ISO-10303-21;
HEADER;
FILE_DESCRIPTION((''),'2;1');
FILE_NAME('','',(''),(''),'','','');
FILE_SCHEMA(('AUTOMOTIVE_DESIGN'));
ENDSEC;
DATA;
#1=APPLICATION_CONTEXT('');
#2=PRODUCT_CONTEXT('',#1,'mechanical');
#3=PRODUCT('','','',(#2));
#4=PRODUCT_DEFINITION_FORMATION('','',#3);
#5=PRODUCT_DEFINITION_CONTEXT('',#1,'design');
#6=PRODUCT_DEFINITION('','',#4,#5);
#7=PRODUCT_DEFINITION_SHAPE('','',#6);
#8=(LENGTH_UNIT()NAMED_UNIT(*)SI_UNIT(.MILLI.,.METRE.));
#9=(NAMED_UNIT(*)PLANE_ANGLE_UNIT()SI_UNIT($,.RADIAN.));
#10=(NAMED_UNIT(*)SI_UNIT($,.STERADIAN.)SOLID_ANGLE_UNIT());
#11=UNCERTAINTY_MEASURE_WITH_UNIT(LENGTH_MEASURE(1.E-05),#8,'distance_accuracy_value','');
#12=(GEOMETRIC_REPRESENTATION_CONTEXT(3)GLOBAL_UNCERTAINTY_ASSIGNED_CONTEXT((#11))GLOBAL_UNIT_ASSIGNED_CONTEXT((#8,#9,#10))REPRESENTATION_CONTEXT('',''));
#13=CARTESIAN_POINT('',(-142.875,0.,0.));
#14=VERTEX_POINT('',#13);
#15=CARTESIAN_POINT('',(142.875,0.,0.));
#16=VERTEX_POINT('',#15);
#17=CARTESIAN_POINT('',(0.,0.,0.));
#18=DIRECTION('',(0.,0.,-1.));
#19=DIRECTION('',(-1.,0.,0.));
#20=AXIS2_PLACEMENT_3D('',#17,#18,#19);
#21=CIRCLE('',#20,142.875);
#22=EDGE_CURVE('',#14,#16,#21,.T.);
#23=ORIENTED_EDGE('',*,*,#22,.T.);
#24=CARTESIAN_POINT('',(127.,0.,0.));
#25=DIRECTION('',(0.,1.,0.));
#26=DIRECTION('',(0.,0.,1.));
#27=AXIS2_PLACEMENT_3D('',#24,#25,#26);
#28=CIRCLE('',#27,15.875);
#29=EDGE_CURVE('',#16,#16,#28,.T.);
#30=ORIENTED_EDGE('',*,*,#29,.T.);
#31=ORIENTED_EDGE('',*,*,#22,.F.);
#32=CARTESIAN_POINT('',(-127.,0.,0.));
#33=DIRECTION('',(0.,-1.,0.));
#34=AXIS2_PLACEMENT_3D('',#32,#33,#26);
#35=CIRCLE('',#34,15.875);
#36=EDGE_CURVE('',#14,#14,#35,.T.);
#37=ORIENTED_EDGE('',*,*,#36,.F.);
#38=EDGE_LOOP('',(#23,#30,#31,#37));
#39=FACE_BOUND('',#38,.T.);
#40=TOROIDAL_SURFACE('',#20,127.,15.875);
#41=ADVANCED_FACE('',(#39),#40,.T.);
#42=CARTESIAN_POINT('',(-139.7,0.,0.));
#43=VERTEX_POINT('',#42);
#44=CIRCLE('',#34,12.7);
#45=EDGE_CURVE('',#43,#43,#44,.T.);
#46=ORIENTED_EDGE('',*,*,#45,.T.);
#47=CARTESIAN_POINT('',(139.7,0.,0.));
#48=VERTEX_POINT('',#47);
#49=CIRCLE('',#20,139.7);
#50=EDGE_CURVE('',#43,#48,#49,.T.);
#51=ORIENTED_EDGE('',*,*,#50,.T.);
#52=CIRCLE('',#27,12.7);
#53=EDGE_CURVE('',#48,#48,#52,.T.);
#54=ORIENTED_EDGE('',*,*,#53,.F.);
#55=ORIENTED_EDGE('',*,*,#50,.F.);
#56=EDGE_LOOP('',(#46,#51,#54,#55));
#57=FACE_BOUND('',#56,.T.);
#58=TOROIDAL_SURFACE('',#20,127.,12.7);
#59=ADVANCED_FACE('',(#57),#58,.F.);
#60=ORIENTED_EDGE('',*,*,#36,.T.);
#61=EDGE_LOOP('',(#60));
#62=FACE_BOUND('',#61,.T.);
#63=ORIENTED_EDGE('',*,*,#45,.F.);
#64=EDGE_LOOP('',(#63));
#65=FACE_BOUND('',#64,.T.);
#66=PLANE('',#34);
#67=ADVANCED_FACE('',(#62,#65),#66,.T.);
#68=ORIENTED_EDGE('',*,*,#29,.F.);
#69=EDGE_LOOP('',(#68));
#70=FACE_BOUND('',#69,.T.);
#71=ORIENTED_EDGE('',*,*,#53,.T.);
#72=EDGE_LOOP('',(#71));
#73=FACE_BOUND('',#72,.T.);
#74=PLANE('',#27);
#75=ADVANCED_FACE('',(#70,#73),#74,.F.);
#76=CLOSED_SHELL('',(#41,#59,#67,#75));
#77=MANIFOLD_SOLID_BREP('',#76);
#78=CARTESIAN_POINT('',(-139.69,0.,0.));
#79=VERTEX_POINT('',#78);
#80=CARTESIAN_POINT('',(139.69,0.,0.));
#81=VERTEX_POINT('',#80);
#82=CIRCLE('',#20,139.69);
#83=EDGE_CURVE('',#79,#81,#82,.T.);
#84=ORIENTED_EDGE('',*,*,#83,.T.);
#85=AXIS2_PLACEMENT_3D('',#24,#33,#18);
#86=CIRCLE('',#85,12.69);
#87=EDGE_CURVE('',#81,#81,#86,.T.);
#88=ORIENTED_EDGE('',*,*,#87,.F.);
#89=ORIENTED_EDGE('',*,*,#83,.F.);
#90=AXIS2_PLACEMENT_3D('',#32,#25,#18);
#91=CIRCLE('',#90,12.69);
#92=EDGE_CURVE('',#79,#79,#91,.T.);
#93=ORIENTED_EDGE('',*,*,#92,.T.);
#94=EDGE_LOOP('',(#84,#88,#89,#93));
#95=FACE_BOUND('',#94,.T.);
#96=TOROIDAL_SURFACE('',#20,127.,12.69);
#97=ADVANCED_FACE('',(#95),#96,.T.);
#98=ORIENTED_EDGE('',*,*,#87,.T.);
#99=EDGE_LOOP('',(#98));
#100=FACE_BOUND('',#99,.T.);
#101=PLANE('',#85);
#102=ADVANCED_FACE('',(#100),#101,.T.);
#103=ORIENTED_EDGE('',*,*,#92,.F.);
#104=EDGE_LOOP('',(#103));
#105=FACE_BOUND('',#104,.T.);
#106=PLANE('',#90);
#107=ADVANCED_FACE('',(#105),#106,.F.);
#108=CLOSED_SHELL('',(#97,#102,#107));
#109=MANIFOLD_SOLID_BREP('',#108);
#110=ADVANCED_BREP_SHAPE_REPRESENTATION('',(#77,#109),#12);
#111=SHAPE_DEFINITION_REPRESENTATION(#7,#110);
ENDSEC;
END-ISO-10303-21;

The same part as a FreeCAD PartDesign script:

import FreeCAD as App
import Part
import Sketcher
from FreeCAD import Vector
Q = App.Units.Quantity

doc = App.newDocument("Part")
params = doc.addObject("Spreadsheet::Sheet", "Params")
for row, (alias, value) in enumerate([
    ("sketch1_diameter", "1 in"),
    ("sketch1_diameter2", "1.25 in"),
    ("revolution_angle", "180 deg"),
    ("revolution2_angle", "180 deg"),
], start=1):
    params.set(f"A{row}", alias)
    params.set(f"B{row}", "=" + value)
    params.setAlias(f"B{row}", alias)

body = doc.addObject("PartDesign::Body", "Body")

sketch1 = doc.addObject("Sketcher::SketchObject", "Sketch")
body.addObject(sketch1)
sketch1.AttachmentSupport = (doc.XZ_Plane, [""])
sketch1.MapMode = "FlatFace"
sketch1.addGeometry([
    Part.Circle(Vector(127, 0, 0), Vector(0, 0, 1), 15.875),
    Part.Circle(Vector(127, 0, 0), Vector(0, 0, 1), 12.7),
], False)
sketch1.addConstraint([
    Sketcher.Constraint("Coincident", 1, 3, 0, 3),
    Sketcher.Constraint("PointOnObject", 0, 3, -1),
    Sketcher.Constraint("Diameter", 1, Q("1 in")),
    Sketcher.Constraint("Diameter", 0, Q("1.25 in")),
    Sketcher.Constraint("DistanceX", -1, 1, 0, 3, Q("5 in")),
])
sketch1.setExpression("Constraints[2]", "Params.sketch1_diameter")
sketch1.setExpression("Constraints[3]", "Params.sketch1_diameter2")
revolution = doc.addObject("PartDesign::Revolution", "Revolution")
body.addObject(revolution)
revolution.Profile = sketch1
revolution.ReferenceAxis = (sketch1, ["V_Axis"])
revolution.setExpression("Angle", "Params.revolution_angle")
body2 = doc.addObject("PartDesign::Body", "Body001")

sketch2 = doc.addObject("Sketcher::SketchObject", "Sketch001")
body2.addObject(sketch2)
sketch2.AttachmentSupport = (doc.getObject("XZ_Plane001"), [""])
sketch2.MapMode = "FlatFace"
sketch2.addGeometry(Part.Circle(Vector(127, 0, 0), Vector(0, 0, 1), 12.69), False)
sketch2.addConstraint([
    Sketcher.Constraint("PointOnObject", 0, 3, -1),
    Sketcher.Constraint("DistanceX", -1, 1, 0, 3, Q("5 in")),
    Sketcher.Constraint("Diameter", 0, 25.38),
])
revolution2 = doc.addObject("PartDesign::Revolution", "Revolution001")
body2.addObject(revolution2)
revolution2.Profile = sketch2
revolution2.ReferenceAxis = (sketch2, ["V_Axis"])
revolution2.setExpression("Angle", "Params.revolution2_angle")

doc.recompute()
